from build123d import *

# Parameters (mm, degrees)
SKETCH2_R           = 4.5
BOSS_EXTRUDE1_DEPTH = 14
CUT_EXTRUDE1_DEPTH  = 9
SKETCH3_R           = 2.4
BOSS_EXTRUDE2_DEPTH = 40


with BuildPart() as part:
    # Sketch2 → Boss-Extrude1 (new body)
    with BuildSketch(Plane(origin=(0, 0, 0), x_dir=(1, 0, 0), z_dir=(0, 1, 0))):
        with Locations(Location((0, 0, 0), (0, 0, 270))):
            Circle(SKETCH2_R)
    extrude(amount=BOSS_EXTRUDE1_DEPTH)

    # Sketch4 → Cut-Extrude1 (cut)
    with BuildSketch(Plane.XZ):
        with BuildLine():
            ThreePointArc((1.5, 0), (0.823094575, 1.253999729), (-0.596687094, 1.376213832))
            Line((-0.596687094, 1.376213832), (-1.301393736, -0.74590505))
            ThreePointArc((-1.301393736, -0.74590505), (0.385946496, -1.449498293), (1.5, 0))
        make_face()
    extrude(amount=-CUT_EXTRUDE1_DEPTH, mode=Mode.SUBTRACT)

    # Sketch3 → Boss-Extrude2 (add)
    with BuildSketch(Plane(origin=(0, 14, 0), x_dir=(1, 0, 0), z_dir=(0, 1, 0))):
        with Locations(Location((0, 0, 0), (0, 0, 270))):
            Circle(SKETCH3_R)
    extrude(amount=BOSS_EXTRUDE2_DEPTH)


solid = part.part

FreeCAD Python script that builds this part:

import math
import FreeCAD as App
import Part
import Sketcher

V = App.Vector
Q = App.Units.Quantity

doc = App.newDocument("Part")
body = doc.addObject("PartDesign::Body", "Body")

# Sketch on XZ plane
sketch1 = body.newObject("Sketcher::SketchObject", "Sketch")
sketch1.AttachmentSupport = (doc.getObject("XZ_Plane"), [""])
sketch1.MapMode = "FlatFace"
sketch1.addGeometry(Part.Circle(V(0, 0, 0), V(0, 0, 1), 4.5), False)
sketch1.addConstraint([
    Sketcher.Constraint("Coincident", 0, 3, -1, 1),
    Sketcher.Constraint("Diameter", 0, Q("9 mm")),
])
pad1 = body.newObject("PartDesign::Pad", "Pad")
pad1.Profile = sketch1
pad1.Length = 14
pad1.Reversed = True

# Sketch on XZ plane
sketch2 = body.newObject("Sketcher::SketchObject", "Sketch001")
sketch2.AttachmentSupport = (doc.getObject("XZ_Plane"), [""])
sketch2.MapMode = "FlatFace"
sketch2.addGeometry([
    Part.ArcOfCircle(Part.Circle(V(0, 0, 0), V(0, 0, 1), 1.5), math.radians(0), math.radians(113.44018)),
    Part.LineSegment(V(-0.596687, 1.376214, 0), V(-1.301394, -0.745905, 0)),
    Part.ArcOfCircle(Part.Circle(V(0, 0, 0), V(0, 0, 1), 1.5), math.radians(-150.180449), math.radians(0)),
], False)
sketch2.addConstraint([
    Sketcher.Constraint("Coincident", 0, 2, 1, 1),
    Sketcher.Constraint("Coincident", 1, 2, 2, 1),
    Sketcher.Constraint("Tangent", 2, 2, 0, 1),
    Sketcher.Constraint("Coincident", 0, 3, -1, 1),
    Sketcher.Constraint("Equal", 0, 2),
    Sketcher.Constraint("PointOnObject", 2, 2, -1),
    Sketcher.Constraint("Radius", 0, Q("1.5 mm")),
    Sketcher.Constraint("DistanceY", 1, 2, 0, 2, Q("2.122119 mm")),
    Sketcher.Constraint("Distance", 1, Q("2.236068 mm")),
])
pocket1 = body.newObject("PartDesign::Pocket", "Pocket")
pocket1.Profile = sketch2
pocket1.Length = 9

# Sketch on XZ plane
sketch3 = body.newObject("Sketcher::SketchObject", "Sketch002")
sketch3.AttachmentSupport = (doc.getObject("XZ_Plane"), [""])
sketch3.MapMode = "FlatFace"
sketch3.AttachmentOffset = App.Placement(V(0, 0, -14), App.Rotation())
sketch3.addGeometry(Part.Circle(V(0, 0, 0), V(0, 0, 1), 2.4), False)
sketch3.addConstraint([
    Sketcher.Constraint("Coincident", 0, 3, -1, 1),
    Sketcher.Constraint("Diameter", 0, Q("4.8 mm")),
])
pad2 = body.newObject("PartDesign::Pad", "Pad001")
pad2.Profile = sketch3
pad2.Length = 40
pad2.Reversed = True

doc.recompute()
